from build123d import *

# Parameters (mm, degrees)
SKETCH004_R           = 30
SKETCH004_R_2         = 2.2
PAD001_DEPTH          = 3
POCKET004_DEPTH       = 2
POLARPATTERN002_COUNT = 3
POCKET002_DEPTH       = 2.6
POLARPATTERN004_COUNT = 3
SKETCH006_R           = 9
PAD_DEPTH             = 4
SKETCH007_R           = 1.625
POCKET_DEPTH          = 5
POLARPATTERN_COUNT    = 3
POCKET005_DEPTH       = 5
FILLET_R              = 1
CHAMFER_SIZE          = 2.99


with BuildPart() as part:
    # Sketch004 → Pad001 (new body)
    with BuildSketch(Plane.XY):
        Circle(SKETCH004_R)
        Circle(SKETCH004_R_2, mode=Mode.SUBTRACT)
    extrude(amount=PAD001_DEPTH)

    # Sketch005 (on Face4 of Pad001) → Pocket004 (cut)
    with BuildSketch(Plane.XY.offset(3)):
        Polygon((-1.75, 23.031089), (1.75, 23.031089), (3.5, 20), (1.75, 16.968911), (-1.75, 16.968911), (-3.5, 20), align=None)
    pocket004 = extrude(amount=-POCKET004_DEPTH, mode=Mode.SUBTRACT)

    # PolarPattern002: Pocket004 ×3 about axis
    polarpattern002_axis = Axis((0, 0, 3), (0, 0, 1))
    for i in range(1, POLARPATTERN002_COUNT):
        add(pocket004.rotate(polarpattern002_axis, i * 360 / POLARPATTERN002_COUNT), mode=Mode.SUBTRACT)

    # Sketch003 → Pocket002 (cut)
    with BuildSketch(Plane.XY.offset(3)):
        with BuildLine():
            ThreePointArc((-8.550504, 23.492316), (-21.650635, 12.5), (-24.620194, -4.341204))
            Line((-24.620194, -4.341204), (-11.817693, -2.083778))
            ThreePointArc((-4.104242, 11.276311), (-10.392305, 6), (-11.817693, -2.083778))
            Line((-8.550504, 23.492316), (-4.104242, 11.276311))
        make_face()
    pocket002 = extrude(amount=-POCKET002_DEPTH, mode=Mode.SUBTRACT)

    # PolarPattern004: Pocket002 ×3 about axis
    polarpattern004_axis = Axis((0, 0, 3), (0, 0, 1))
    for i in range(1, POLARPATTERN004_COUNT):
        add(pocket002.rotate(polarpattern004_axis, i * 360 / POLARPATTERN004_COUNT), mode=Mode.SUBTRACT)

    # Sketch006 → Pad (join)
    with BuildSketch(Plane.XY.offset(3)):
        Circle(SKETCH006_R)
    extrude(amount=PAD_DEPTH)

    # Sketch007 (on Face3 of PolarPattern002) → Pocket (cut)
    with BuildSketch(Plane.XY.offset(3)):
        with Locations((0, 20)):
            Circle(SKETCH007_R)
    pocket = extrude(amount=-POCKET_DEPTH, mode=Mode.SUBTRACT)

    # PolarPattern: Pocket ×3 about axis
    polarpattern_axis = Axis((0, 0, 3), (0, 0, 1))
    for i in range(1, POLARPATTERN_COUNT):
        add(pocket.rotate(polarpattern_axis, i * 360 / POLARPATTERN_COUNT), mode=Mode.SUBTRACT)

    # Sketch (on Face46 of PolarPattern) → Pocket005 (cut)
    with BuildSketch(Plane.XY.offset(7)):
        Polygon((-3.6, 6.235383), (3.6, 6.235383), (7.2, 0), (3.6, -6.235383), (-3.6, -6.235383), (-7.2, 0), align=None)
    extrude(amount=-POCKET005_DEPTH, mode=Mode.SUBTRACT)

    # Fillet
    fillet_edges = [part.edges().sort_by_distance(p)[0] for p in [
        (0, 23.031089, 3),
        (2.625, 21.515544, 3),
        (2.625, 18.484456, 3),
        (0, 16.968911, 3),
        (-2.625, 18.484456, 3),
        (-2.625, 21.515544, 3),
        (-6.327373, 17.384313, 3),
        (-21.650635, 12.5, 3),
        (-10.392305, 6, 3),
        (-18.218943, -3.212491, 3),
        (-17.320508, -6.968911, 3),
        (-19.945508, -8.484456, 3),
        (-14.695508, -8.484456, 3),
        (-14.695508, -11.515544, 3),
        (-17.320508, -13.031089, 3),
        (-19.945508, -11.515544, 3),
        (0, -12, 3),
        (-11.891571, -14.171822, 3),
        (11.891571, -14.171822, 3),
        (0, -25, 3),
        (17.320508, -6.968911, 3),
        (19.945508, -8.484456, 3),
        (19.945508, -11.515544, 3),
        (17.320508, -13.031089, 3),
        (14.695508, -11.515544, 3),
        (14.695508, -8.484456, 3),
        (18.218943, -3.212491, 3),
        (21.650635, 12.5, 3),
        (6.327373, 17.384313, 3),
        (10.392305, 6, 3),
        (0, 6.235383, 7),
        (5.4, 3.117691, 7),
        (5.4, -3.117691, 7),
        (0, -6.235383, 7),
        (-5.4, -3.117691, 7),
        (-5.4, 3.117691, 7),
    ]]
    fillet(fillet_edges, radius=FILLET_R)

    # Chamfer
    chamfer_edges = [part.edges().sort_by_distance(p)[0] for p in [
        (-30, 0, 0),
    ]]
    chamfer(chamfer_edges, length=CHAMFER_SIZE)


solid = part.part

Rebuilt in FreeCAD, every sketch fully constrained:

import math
import FreeCAD as App
import Part
import Sketcher
Q = App.Units.Quantity


def edges_at(feature, points):
    """Names of the edges that pass closest to the given points."""
    edges = feature.Shape.Edges
    near = lambda p: min(range(len(edges)), key=lambda i: edges[i].distToShape(Part.Vertex(*p))[0])
    return sorted({f"Edge{near(p) + 1}" for p in points})

doc = App.newDocument("Part")
body = doc.addObject("PartDesign::Body", "Body")

sketch1 = body.newObject("Sketcher::SketchObject", "Sketch")
sketch1.AttachmentSupport = (doc.getObject("XY_Plane"), [""])
sketch1.MapMode = "FlatFace"
sketch1.addGeometry(Part.Circle(App.Vector(0, 0, 0), App.Vector(0, 0, 1), 30), False)
sketch1.addGeometry(Part.Circle(App.Vector(0, 0, 0), App.Vector(0, 0, 1), 2.2), False)
sketch1.addConstraint(Sketcher.Constraint("Coincident", 0, 3, -1, 1))
sketch1.addConstraint(Sketcher.Constraint("Coincident", 1, 3, -1, 1))
sketch1.addConstraint(Sketcher.Constraint("Diameter", 0, Q("60 mm")))
sketch1.addConstraint(Sketcher.Constraint("Diameter", 1, Q("4.4 mm")))
pad1 = body.newObject("PartDesign::Pad", "Pad")
pad1.Profile = sketch1
pad1.Length = 3

sketch2 = body.newObject("Sketcher::SketchObject", "Sketch001")
sketch2.AttachmentSupport = (doc.getObject("XY_Plane"), [""])
sketch2.MapMode = "FlatFace"
sketch2.AttachmentOffset = App.Placement(App.Vector(0, 0, 3), App.Rotation())
sketch2.addGeometry(Part.LineSegment(App.Vector(1.8, 23, 0), App.Vector(-1.8, 23, 0)), False)
sketch2.addGeometry(Part.LineSegment(App.Vector(-1.8, 23, 0), App.Vector(-3.5, 20, 0)), False)
sketch2.addGeometry(Part.LineSegment(App.Vector(-3.5, 20, 0), App.Vector(-1.8, 17, 0)), False)
sketch2.addGeometry(Part.LineSegment(App.Vector(-1.8, 17, 0), App.Vector(1.8, 17, 0)), False)
sketch2.addGeometry(Part.LineSegment(App.Vector(1.8, 17, 0), App.Vector(3.5, 20, 0)), False)
sketch2.addGeometry(Part.LineSegment(App.Vector(3.5, 20, 0), App.Vector(1.8, 23, 0)), False)
sketch2.addConstraint(Sketcher.Constraint("Coincident", 0, 2, 1, 1))
sketch2.addConstraint(Sketcher.Constraint("Coincident", 1, 2, 2, 1))
sketch2.addConstraint(Sketcher.Constraint("Coincident", 2, 2, 3, 1))
sketch2.addConstraint(Sketcher.Constraint("Coincident", 3, 2, 4, 1))
sketch2.addConstraint(Sketcher.Constraint("Coincident", 4, 2, 5, 1))
sketch2.addConstraint(Sketcher.Constraint("Coincident", 5, 2, 0, 1))
sketch2.addConstraint(Sketcher.Constraint("Horizontal", 0))
sketch2.addConstraint(Sketcher.Constraint("Horizontal", 3))
sketch2.addConstraint(Sketcher.Constraint("Symmetric", 1, 2, 4, 2, -2))
sketch2.addConstraint(Sketcher.Constraint("Parallel", 1, 4))
sketch2.addConstraint(Sketcher.Constraint("Parallel", 2, 5))
sketch2.addConstraint(Sketcher.Constraint("Vertical", 0, 2, 2, 2))
sketch2.addConstraint(Sketcher.Constraint("Vertical", 3, 2, 5, 2))
sketch2.addConstraint(Sketcher.Constraint("Angle", 1, Q("-119.999999 deg")))
sketch2.addConstraint(Sketcher.Constraint("DistanceX", 0, 2, 0, 1, Q("3.5 mm")))
sketch2.addConstraint(Sketcher.Constraint("DistanceY", -1, 1, 1, 2, Q("20 mm")))
sketch2.addConstraint(Sketcher.Constraint("DistanceX", 1, 2, 4, 2, Q("7 mm")))
pocket1 = body.newObject("PartDesign::Pocket", "Pocket")
pocket1.Profile = sketch2
pocket1.Length = 2
doc.recompute()

polarpattern = body.newObject("PartDesign::PolarPattern", "PolarPattern")
polarpattern.Originals = [pocket1]
polarpattern.Axis = (doc.getObject("Z_Axis"), [""])
polarpattern.Angle = 360
polarpattern.Occurrences = 3
body.Tip = polarpattern

sketch3 = body.newObject("Sketcher::SketchObject", "Sketch002")
sketch3.AttachmentSupport = (doc.getObject("XY_Plane"), [""])
sketch3.MapMode = "FlatFace"
sketch3.AttachmentOffset = App.Placement(App.Vector(0, 0, 3), App.Rotation())
sketch3.addGeometry(Part.ArcOfCircle(Part.Circle(App.Vector(0, 0, 0), App.Vector(0, 0, 1), 25), math.radians(110), math.radians(190)), False)
sketch3.addGeometry(Part.LineSegment(App.Vector(-25, -4, 0), App.Vector(-12, -2, 0)), False)
sketch3.addGeometry(Part.ArcOfCircle(Part.Circle(App.Vector(0, 0, 0), App.Vector(0, 0, 1), 12), math.radians(110), math.radians(190)), False)
sketch3.addGeometry(Part.LineSegment(App.Vector(-4, 11, 0), App.Vector(-9, 23, 0)), False)
sketch3.addConstraint(Sketcher.Constraint("Coincident", 0, 2, 1, 1))
sketch3.addConstraint(Sketcher.Constraint("Coincident", 1, 2, 2, 2))
sketch3.addConstraint(Sketcher.Constraint("Coincident", 2, 1, 3, 1))
sketch3.addConstraint(Sketcher.Constraint("Coincident", 3, 2, 0, 1))
sketch3.addConstraint(Sketcher.Constraint("Coincident", 0, 3, -1, 1))
sketch3.addConstraint(Sketcher.Constraint("Coincident", 2, 3, -1, 1))
sketch3.addConstraint(Sketcher.Constraint("Radius", 0, Q("25.000002 mm")))
sketch3.addConstraint(Sketcher.Constraint("Radius", 2, Q("11.999999 mm")))
sketch3.addConstraint(Sketcher.Constraint("Angle", 1, Q("9.999998 deg")))
sketch3.addConstraint(Sketcher.Constraint("Angle", 3, Q("109.999999 deg")))
sketch3.addConstraint(Sketcher.Constraint("DistanceY", 1, 2, -1, 1, Q("2.083778 mm")))
sketch3.addConstraint(Sketcher.Constraint("DistanceY", -1, 1, 2, 1, Q("11.276311 mm")))
pocket2 = body.newObject("PartDesign::Pocket", "Pocket001")
pocket2.Profile = sketch3
pocket2.Length = 2.6
doc.recompute()

polarpattern2 = body.newObject("PartDesign::PolarPattern", "PolarPattern001")
polarpattern2.Originals = [pocket2]
polarpattern2.Axis = (doc.getObject("Z_Axis"), [""])
polarpattern2.Angle = 360
polarpattern2.Occurrences = 3
body.Tip = polarpattern2

sketch4 = body.newObject("Sketcher::SketchObject", "Sketch003")
sketch4.AttachmentSupport = (doc.getObject("XY_Plane"), [""])
sketch4.MapMode = "FlatFace"
sketch4.AttachmentOffset = App.Placement(App.Vector(0, 0, 3), App.Rotation())
sketch4.addGeometry(Part.Circle(App.Vector(0, 0, 0), App.Vector(0, 0, 1), 9), False)
sketch4.addConstraint(Sketcher.Constraint("Coincident", 0, 3, -1, 1))
sketch4.addConstraint(Sketcher.Constraint("Diameter", 0, Q("18 mm")))
pad2 = body.newObject("PartDesign::Pad", "Pad001")
pad2.Profile = sketch4
pad2.Length = 4

sketch5 = body.newObject("Sketcher::SketchObject", "Sketch004")
sketch5.AttachmentSupport = (doc.getObject("XY_Plane"), [""])
sketch5.MapMode = "FlatFace"
sketch5.AttachmentOffset = App.Placement(App.Vector(0, 0, 3), App.Rotation())
sketch5.addGeometry(Part.Circle(App.Vector(0, 20, 0), App.Vector(0, 0, 1), 1.6), False)
sketch5.addConstraint(Sketcher.Constraint("PointOnObject", 0, 3, -2))
sketch5.addConstraint(Sketcher.Constraint("Diameter", 0, Q("3.25 mm")))
sketch5.addConstraint(Sketcher.Constraint("DistanceY", -1, 1, 0, 3, Q("20 mm")))
pocket3 = body.newObject("PartDesign::Pocket", "Pocket002")
pocket3.Profile = sketch5
pocket3.Length = 5
doc.recompute()

polarpattern3 = body.newObject("PartDesign::PolarPattern", "PolarPattern002")
polarpattern3.Originals = [pocket3]
polarpattern3.Axis = (doc.getObject("Z_Axis"), [""])
polarpattern3.Angle = 360
polarpattern3.Occurrences = 3
body.Tip = polarpattern3

sketch6 = body.newObject("Sketcher::SketchObject", "Sketch005")
sketch6.AttachmentSupport = (doc.getObject("XY_Plane"), [""])
sketch6.MapMode = "FlatFace"
sketch6.AttachmentOffset = App.Placement(App.Vector(0, 0, 7), App.Rotation())
sketch6.addGeometry(Part.LineSegment(App.Vector(4, 6, 0), App.Vector(-4, 6, 0)), False)
sketch6.addGeometry(Part.LineSegment(App.Vector(-4, 6, 0), App.Vector(-7, 0, 0)), False)
sketch6.addGeometry(Part.LineSegment(App.Vector(-7, 0, 0), App.Vector(-4, -6, 0)), False)
sketch6.addGeometry(Part.LineSegment(App.Vector(-4, -6, 0), App.Vector(4, -6, 0)), False)
sketch6.addGeometry(Part.LineSegment(App.Vector(4, -6, 0), App.Vector(7, 0, 0)), False)
sketch6.addGeometry(Part.LineSegment(App.Vector(7, 0, 0), App.Vector(4, 6, 0)), False)
sketch6.addConstraint(Sketcher.Constraint("Coincident", 0, 2, 1, 1))
sketch6.addConstraint(Sketcher.Constraint("Coincident", 1, 2, 2, 1))
sketch6.addConstraint(Sketcher.Constraint("Coincident", 2, 2, 3, 1))
sketch6.addConstraint(Sketcher.Constraint("Coincident", 3, 2, 4, 1))
sketch6.addConstraint(Sketcher.Constraint("Coincident", 4, 2, 5, 1))
sketch6.addConstraint(Sketcher.Constraint("Coincident", 5, 2, 0, 1))
sketch6.addConstraint(Sketcher.Constraint("Horizontal", 0))
sketch6.addConstraint(Sketcher.Constraint("Horizontal", 3))
sketch6.addConstraint(Sketcher.Constraint("Symmetric", 0, 2, 3, 2, -1, 1))
sketch6.addConstraint(Sketcher.Constraint("Symmetric", 1, 2, 4, 2, -1, 1))
sketch6.addConstraint(Sketcher.Constraint("PointOnObject", 1, 2, -1))
sketch6.addConstraint(Sketcher.Constraint("Parallel", 2, 5))
sketch6.addConstraint(Sketcher.Constraint("Vertical", 0, 2, 2, 2))
sketch6.addConstraint(Sketcher.Constraint("Angle", 1, Q("-120 deg")))
sketch6.addConstraint(Sketcher.Constraint("DistanceX", 0, 2, 0, 1, Q("7.2 mm")))
sketch6.addConstraint(Sketcher.Constraint("Distance", 1, Q("7.2 mm")))
pocket4 = body.newObject("PartDesign::Pocket", "Pocket003")
pocket4.Profile = sketch6
pocket4.Length = 5
doc.recompute()

fillet = body.newObject("PartDesign::Fillet", "Fillet")
fillet.Base = (pocket4, edges_at(pocket4, [
    (0, 23.031, 3),
    (2.625, 21.516, 3),
    (2.625, 18.484, 3),
    (0, 16.969, 3),
    (-2.625, 18.484, 3),
    (-2.625, 21.516, 3),
    (-6.327, 17.384, 3),
    (-21.651, 12.5, 3),
    (-10.392, 6, 3),
    (-18.219, -3.212, 3),
    (-17.321, -6.969, 3),
    (-19.946, -8.484, 3),
    (-14.696, -8.484, 3),
    (-14.696, -11.516, 3),
    (-17.321, -13.031, 3),
    (-19.946, -11.516, 3),
    (0, -12, 3),
    (-11.892, -14.172, 3),
    (11.892, -14.172, 3),
    (0, -25, 3),
    (17.321, -6.969, 3),
    (19.946, -8.484, 3),
    (19.946, -11.516, 3),
    (17.321, -13.031, 3),
    (14.696, -11.516, 3),
    (14.696, -8.484, 3),
    (18.219, -3.212, 3),
    (21.651, 12.5, 3),
    (6.327, 17.384, 3),
    (10.392, 6, 3),
    (0, 6.235, 7),
    (5.4, 3.118, 7),
    (5.4, -3.118, 7),
    (0, -6.235, 7),
    (-5.4, -3.118, 7),
    (-5.4, 3.118, 7),
]))
fillet.Radius = 1
doc.recompute()

chamfer = body.newObject("PartDesign::Chamfer", "Chamfer")
chamfer.Base = (fillet, edges_at(fillet, [(-30, 0, 0)]))
chamfer.Size = 2.99

doc.recompute()
